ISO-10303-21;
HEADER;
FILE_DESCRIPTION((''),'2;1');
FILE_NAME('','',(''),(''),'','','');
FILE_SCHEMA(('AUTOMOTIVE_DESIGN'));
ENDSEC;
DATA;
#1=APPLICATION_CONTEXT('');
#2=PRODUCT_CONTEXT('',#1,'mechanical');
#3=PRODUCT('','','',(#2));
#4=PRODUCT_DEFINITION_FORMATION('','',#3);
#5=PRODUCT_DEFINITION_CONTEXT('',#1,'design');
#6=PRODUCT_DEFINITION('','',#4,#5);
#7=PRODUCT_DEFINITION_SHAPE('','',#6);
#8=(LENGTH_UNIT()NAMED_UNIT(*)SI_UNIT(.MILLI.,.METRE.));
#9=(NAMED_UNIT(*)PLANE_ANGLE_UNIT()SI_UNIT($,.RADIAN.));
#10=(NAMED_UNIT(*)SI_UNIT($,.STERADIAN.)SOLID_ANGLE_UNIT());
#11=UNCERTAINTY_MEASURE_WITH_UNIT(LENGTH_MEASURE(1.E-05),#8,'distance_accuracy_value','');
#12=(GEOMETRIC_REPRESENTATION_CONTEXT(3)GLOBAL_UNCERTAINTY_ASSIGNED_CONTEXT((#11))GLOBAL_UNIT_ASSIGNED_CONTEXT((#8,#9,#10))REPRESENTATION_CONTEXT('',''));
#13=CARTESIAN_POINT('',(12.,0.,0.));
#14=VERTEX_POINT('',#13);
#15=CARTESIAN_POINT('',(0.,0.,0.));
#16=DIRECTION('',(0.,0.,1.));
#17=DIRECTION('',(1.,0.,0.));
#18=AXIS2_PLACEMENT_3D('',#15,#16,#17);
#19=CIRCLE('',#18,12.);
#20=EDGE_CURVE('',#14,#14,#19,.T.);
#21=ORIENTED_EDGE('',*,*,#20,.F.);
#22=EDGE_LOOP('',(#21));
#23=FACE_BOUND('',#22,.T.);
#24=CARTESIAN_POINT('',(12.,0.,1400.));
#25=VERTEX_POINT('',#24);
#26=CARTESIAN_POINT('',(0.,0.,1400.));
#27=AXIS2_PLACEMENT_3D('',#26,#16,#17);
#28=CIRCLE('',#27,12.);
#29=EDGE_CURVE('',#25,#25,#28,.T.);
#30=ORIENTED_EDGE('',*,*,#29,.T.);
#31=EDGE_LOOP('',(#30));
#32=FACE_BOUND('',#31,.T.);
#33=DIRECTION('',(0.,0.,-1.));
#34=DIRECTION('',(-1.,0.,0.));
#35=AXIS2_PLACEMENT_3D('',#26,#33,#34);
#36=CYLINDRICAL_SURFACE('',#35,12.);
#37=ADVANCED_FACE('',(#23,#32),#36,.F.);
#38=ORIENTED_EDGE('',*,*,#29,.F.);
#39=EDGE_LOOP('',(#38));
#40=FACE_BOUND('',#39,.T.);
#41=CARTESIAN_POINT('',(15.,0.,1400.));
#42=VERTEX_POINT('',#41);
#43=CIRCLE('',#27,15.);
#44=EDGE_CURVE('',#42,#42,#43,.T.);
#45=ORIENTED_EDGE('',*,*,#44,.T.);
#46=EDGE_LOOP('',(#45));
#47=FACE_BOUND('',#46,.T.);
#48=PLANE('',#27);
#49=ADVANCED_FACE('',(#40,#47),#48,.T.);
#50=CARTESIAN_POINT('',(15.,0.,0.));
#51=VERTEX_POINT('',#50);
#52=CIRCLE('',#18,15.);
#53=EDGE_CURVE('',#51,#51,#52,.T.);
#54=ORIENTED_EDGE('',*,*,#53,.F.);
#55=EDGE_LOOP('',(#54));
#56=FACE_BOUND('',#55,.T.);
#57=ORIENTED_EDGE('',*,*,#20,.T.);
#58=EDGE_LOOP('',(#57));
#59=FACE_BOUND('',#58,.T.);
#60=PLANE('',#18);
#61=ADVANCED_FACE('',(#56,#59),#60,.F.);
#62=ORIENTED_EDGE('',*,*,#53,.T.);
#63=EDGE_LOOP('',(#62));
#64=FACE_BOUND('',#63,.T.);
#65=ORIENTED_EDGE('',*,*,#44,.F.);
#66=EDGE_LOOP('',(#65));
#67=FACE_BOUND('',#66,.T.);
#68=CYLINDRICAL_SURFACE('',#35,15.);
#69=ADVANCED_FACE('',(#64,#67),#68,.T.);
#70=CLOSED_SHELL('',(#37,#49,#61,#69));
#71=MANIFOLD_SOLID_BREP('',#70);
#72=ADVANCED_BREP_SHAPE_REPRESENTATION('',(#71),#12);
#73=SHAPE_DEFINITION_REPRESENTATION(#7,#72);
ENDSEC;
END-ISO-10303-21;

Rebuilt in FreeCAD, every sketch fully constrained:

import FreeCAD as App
import Part
import Sketcher
from FreeCAD import Vector

doc = App.newDocument("Part")
body = doc.addObject("PartDesign::Body", "Body")

sketch1 = doc.addObject("Sketcher::SketchObject", "Sketch")
body.addObject(sketch1)
sketch1.AttachmentSupport = (doc.XY_Plane, [""])
sketch1.MapMode = "FlatFace"
sketch1.addGeometry(Part.Circle(Vector(0, 0, 0), Vector(0, 0, 1), 15), False)
sketch1.addConstraint([
    Sketcher.Constraint("Coincident", 0, 3, -1, 1),
    Sketcher.Constraint("Diameter", 0, 30.0),
])
pad1 = doc.addObject("PartDesign::Pad", "Pad")
body.addObject(pad1)
pad1.Profile = sketch1
pad1.Length = 1400

sketch2 = doc.addObject("Sketcher::SketchObject", "Sketch001")
body.addObject(sketch2)
sketch2.AttachmentSupport = (doc.XY_Plane, [""])
sketch2.MapMode = "FlatFace"
sketch2.addGeometry(Part.Circle(Vector(0, 0, 0), Vector(0, 0, 1), 12), False)
sketch2.addConstraint([
    Sketcher.Constraint("Coincident", 0, 3, -1, 1),
    Sketcher.Constraint("Diameter", 0, 24.0),
])
pocket1 = doc.addObject("PartDesign::Pocket", "Pocket")
body.addObject(pocket1)
pocket1.Profile = sketch2
pocket1.Length = 1400
pocket1.Reversed = True

doc.recompute()
